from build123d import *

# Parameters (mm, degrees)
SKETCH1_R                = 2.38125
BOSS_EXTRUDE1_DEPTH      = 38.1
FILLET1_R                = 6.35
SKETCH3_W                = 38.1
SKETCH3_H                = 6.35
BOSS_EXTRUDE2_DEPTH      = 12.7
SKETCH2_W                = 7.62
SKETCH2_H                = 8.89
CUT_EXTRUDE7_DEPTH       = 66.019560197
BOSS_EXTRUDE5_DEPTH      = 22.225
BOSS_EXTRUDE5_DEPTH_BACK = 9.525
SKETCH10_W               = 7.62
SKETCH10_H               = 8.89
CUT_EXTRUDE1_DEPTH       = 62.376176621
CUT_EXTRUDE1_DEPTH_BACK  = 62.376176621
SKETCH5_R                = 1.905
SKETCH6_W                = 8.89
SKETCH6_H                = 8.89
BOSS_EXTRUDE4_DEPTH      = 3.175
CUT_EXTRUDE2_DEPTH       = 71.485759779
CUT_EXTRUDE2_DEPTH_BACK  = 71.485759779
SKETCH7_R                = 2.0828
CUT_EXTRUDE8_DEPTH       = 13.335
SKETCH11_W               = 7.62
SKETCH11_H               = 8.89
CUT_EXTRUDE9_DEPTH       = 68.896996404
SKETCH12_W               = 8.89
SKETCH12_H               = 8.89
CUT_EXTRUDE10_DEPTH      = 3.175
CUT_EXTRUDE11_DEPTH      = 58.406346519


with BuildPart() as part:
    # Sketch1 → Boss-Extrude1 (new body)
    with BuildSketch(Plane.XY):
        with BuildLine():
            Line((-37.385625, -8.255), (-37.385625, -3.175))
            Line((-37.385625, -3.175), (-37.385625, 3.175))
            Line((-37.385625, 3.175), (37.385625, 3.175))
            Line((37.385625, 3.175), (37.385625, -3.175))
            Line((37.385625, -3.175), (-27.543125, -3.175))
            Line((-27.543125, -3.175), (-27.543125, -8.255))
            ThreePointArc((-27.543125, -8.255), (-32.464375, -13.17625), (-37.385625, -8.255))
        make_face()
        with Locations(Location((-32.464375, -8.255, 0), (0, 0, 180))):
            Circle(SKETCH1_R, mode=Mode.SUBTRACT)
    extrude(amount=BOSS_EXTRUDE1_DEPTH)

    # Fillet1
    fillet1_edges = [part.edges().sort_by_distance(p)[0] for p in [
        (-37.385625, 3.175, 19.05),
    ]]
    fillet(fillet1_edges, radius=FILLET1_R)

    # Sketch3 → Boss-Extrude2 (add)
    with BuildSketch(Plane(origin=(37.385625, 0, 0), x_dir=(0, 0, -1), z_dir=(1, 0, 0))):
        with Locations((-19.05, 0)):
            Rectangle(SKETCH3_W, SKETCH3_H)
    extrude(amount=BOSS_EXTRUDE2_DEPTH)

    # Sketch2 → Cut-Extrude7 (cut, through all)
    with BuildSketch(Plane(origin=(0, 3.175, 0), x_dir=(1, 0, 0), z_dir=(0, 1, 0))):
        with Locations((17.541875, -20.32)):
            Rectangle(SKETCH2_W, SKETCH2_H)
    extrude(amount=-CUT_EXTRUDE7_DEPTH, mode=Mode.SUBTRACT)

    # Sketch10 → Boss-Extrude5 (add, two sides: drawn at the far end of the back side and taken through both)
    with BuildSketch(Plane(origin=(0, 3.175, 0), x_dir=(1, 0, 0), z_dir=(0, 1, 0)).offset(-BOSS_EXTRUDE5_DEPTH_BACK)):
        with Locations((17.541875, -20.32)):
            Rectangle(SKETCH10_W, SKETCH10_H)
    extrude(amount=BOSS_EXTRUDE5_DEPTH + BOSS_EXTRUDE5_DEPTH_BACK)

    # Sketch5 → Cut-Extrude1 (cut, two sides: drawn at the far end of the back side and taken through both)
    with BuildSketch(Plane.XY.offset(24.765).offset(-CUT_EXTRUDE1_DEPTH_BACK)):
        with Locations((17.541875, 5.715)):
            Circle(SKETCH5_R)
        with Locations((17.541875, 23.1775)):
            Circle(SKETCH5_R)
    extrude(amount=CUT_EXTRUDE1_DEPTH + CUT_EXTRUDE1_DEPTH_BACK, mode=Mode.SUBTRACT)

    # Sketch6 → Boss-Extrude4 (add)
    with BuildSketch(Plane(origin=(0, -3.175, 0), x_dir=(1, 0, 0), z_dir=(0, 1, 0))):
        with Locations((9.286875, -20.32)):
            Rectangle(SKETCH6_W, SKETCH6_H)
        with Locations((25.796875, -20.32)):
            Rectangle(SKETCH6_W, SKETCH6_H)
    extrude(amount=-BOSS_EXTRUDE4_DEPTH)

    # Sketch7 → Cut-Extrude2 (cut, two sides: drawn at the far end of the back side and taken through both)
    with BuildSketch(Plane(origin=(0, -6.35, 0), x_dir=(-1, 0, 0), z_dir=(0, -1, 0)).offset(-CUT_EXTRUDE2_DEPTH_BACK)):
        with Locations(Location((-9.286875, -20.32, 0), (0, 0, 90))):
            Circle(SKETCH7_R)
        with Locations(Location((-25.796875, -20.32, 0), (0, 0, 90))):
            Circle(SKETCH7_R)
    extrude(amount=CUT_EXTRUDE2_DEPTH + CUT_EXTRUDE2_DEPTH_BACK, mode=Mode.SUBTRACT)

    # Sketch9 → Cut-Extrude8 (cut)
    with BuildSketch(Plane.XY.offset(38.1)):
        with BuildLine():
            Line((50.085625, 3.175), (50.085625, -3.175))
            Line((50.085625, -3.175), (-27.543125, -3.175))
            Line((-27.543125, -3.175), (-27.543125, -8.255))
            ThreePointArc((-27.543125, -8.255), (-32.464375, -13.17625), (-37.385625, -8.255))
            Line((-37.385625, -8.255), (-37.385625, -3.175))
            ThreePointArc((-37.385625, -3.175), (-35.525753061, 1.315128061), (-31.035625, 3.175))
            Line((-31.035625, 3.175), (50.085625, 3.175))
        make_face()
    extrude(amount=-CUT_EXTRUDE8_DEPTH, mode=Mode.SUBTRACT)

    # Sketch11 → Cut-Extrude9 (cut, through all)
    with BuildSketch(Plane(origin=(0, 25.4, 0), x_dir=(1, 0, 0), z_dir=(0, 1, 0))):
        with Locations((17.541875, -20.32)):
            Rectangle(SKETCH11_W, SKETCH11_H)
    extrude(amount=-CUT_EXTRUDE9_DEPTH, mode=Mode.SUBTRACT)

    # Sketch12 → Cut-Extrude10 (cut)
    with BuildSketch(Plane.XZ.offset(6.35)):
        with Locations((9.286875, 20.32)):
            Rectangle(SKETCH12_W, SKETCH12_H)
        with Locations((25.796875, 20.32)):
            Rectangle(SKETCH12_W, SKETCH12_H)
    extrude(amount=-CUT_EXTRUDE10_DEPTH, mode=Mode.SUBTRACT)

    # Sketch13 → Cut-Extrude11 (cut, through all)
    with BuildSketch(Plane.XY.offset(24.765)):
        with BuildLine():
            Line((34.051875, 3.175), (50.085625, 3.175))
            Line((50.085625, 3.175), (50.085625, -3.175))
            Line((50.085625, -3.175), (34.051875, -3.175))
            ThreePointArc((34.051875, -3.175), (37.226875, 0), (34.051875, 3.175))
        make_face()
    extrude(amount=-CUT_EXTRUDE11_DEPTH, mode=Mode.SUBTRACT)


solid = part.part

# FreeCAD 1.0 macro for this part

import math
import FreeCAD as App
import Part
import Sketcher
Q = App.Units.Quantity


def edges_at(feature, points):
    """Names of the edges that pass closest to the given points."""
    edges = feature.Shape.Edges
    near = lambda p: min(range(len(edges)), key=lambda i: edges[i].distToShape(Part.Vertex(*p))[0])
    return sorted({f"Edge{near(p) + 1}" for p in points})


def add_polygon(sketch, points):
    """Adds a closed chain of lines whose ends are joined by coincident constraints."""
    first, n = sketch.GeometryCount, len(points)
    for a, b in zip(points, points[1:] + points[:1]):
        sketch.addGeometry(Part.LineSegment(App.Vector(*a, 0), App.Vector(*b, 0)), False)
    for i in range(n):
        sketch.addConstraint(Sketcher.Constraint("Coincident", first + i, 2, first + (i + 1) % n, 1))

doc = App.newDocument("Part")
body = doc.addObject("PartDesign::Body", "Body")

# Sketch on XY plane
sketch1 = body.newObject("Sketcher::SketchObject", "Sketch")
sketch1.AttachmentSupport = (doc.getObject("XY_Plane"), [""])
sketch1.MapMode = "FlatFace"
sketch1.addGeometry([
    Part.LineSegment(App.Vector(-37.385625, 3.175, 0), App.Vector(-37.385625, -8.255, 0)),  # 0
    Part.ArcOfCircle(Part.Circle(App.Vector(-32.464375, -8.255, 0), App.Vector(0, 0, 1), 4.92125), math.radians(180), math.radians(360)),  # 1
    Part.LineSegment(App.Vector(-27.543125, -8.255, 0), App.Vector(-27.543125, -3.175, 0)),  # 2
    Part.LineSegment(App.Vector(-27.543125, -3.175, 0), App.Vector(37.385625, -3.175, 0)),  # 3
    Part.LineSegment(App.Vector(37.385625, -3.175, 0), App.Vector(37.385625, 3.175, 0)),  # 4
    Part.LineSegment(App.Vector(37.385625, 3.175, 0), App.Vector(-37.385625, 3.175, 0)),  # 5
    Part.Circle(App.Vector(-32.464375, -8.255, 0), App.Vector(0, 0, 1), 2.38125),  # 6
], False)
sketch1.addConstraint([
    Sketcher.Constraint("Tangent", 0, 2, 1, 1),
    Sketcher.Constraint("Tangent", 1, 2, 2, 1),
    Sketcher.Constraint("Coincident", 2, 2, 3, 1),
    Sketcher.Constraint("Coincident", 3, 2, 4, 1),
    Sketcher.Constraint("Coincident", 4, 2, 5, 1),
    Sketcher.Constraint("Coincident", 5, 2, 0, 1),
    Sketcher.Constraint("Vertical", 0),
    Sketcher.Constraint("Vertical", 2),
    Sketcher.Constraint("Horizontal", 3),
    Sketcher.Constraint("Vertical", 4),
    Sketcher.Constraint("Horizontal", 5),
    Sketcher.Constraint("Coincident", 6, 3, 1, 3),
    Sketcher.Constraint("Symmetric", 3, 2, 5, 2, -1, 1),
    Sketcher.Constraint("Diameter", 6, Q("0.1875 in")),
    Sketcher.Constraint("DistanceY", 2, 1, 2, 2, Q("0.2 in")),
    Sketcher.Constraint("DistanceY", 0, 2, 0, 1, Q("0.45 in")),
    Sketcher.Constraint("DistanceX", 1, 3, 3, 2, Q("2.75 in")),
    Sketcher.Constraint("Radius", 1, Q("4.92125 mm")),
])
pad1 = body.newObject("PartDesign::Pad", "Pad")
pad1.Profile = sketch1
pad1.Length = Q("1.5 in")
doc.recompute()

fillet = body.newObject("PartDesign::Fillet", "Fillet")
fillet.Base = (pad1, edges_at(pad1, [(-37.386, 3.175, 19.05)]))
fillet.Radius = Q("0.25 in")

# Sketch on YZ plane
sketch2 = body.newObject("Sketcher::SketchObject", "Sketch001")
sketch2.AttachmentSupport = (doc.getObject("YZ_Plane"), [""])
sketch2.MapMode = "FlatFace"
sketch2.AttachmentOffset = App.Placement(App.Vector(0, 0, 37.385625), App.Rotation())
add_polygon(sketch2, [(3.175, 38.1), (-3.175, 38.1), (-3.175, 0), (3.175, 0)])  # lines 0-3
sketch2.addConstraint([
    Sketcher.Constraint("Horizontal", 0),
    Sketcher.Constraint("Vertical", 1),
    Sketcher.Constraint("Horizontal", 2),
    Sketcher.Constraint("Vertical", 3),
    Sketcher.Constraint("Symmetric", 1, 2, 2, 2, -1, 1),
    Sketcher.Constraint("DistanceY", 1, 2, 1, 1, Q("1.5 in")),
    Sketcher.Constraint("DistanceX", 0, 2, 0, 1, Q("0.25 in")),
])
pad2 = body.newObject("PartDesign::Pad", "Pad001")
pad2.Profile = sketch2
pad2.Length = Q("0.5 in")

# Sketch on XZ plane
sketch3 = body.newObject("Sketcher::SketchObject", "Sketch002")
sketch3.AttachmentSupport = (doc.getObject("XZ_Plane"), [""])
sketch3.MapMode = "FlatFace"
sketch3.AttachmentOffset = App.Placement(App.Vector(0, 0, -0.125 * 25.4), App.Rotation())
add_polygon(sketch3, [(13.731875, 15.875), (13.731875, 24.765), (21.351875, 24.765), (21.351875, 15.875)])  # lines 0-3
sketch3.addConstraint([
    Sketcher.Constraint("Vertical", 0),
    Sketcher.Constraint("Horizontal", 1),
    Sketcher.Constraint("Vertical", 2),
    Sketcher.Constraint("Horizontal", 3),
    Sketcher.Constraint("DistanceX", 1, 1, 1, 2, Q("0.3 in")),
    Sketcher.Constraint("DistanceY", 0, 1, 0, 2, Q("0.35 in")),
    Sketcher.Constraint("DistanceY", -1, 1, 0, 2, Q("0.975 in")),
    Sketcher.Constraint("DistanceX", -1, 1, 0, 2, Q("13.731875 mm")),
])
pocket1 = body.newObject("PartDesign::Pocket", "Pocket")
pocket1.Profile = sketch3
pocket1.Type = "ThroughAll"
pocket1.Reversed = True

# Sketch on XZ plane
sketch4 = body.newObject("Sketcher::SketchObject", "Sketch003")
sketch4.AttachmentSupport = (doc.getObject("XZ_Plane"), [""])
sketch4.MapMode = "FlatFace"
sketch4.AttachmentOffset = App.Placement(App.Vector(0, 0, -0.125 * 25.4), App.Rotation())
add_polygon(sketch4, [(13.731875, 15.875), (13.731875, 24.765), (21.351875, 24.765), (21.351875, 15.875)])  # lines 0-3
sketch4.addConstraint([
    Sketcher.Constraint("Vertical", 0),
    Sketcher.Constraint("Horizontal", 1),
    Sketcher.Constraint("Vertical", 2),
    Sketcher.Constraint("Horizontal", 3),
    Sketcher.Constraint("DistanceX", 1, 1, 1, 2, Q("0.3 in")),
    Sketcher.Constraint("DistanceY", 0, 1, 0, 2, Q("0.35 in")),
    Sketcher.Constraint("DistanceY", -1, 1, 0, 2, Q("0.975 in")),
    Sketcher.Constraint("DistanceX", -1, 1, 0, 2, Q("13.731875 mm")),
])
pad3 = body.newObject("PartDesign::Pad", "Pad002")
pad3.Profile = sketch4
pad3.Type = "TwoLengths"
pad3.Length = Q("0.875 in")
pad3.Length2 = Q("0.375 in")
pad3.Reversed = True

# Sketch on XY plane
sketch5 = body.newObject("Sketcher::SketchObject", "Sketch004")
sketch5.AttachmentSupport = (doc.getObject("XY_Plane"), [""])
sketch5.MapMode = "FlatFace"
sketch5.AttachmentOffset = App.Placement(App.Vector(0, 0, 0.975 * 25.4), App.Rotation())
sketch5.addGeometry([
    Part.Circle(App.Vector(17.541875, 5.715, 0), App.Vector(0, 0, 1), 1.905),
    Part.Circle(App.Vector(17.541875, 23.1775, 0), App.Vector(0, 0, 1), 1.905),
], False)
sketch5.addConstraint([
    Sketcher.Constraint("Equal", 0, 1),
    Sketcher.Constraint("Vertical", 0, 3, 1, 3),
    Sketcher.Constraint("Diameter", 0, Q("0.15 in")),
    Sketcher.Constraint("DistanceY", -1, 1, 0, 3, Q("0.225 in")),
    Sketcher.Constraint("DistanceY", 0, 3, 1, 3, Q("0.6875 in")),
    Sketcher.Constraint("DistanceX", -1, 1, 0, 3, Q("17.541875 mm")),
])
pocket2 = body.newObject("PartDesign::Pocket", "Pocket001")
pocket2.Profile = sketch5
pocket2.Type = "ThroughAll"
pocket2.Midplane = True

# Sketch on XZ plane
sketch6 = body.newObject("Sketcher::SketchObject", "Sketch005")
sketch6.AttachmentSupport = (doc.getObject("XZ_Plane"), [""])
sketch6.MapMode = "FlatFace"
sketch6.AttachmentOffset = App.Placement(App.Vector(0, 0, 0.125 * 25.4), App.Rotation())
add_polygon(sketch6, [(4.841875, 15.875), (4.841875, 24.765), (13.731875, 24.765), (13.731875, 15.875)])  # lines 0-3
add_polygon(sketch6, [(21.351875, 15.875), (21.351875, 24.765), (30.241875, 24.765), (30.241875, 15.875)])  # lines 4-7
sketch6.addConstraint([
    Sketcher.Constraint("Vertical", 0),
    Sketcher.Constraint("Horizontal", 1),
    Sketcher.Constraint("Vertical", 2),
    Sketcher.Constraint("Horizontal", 3),
    Sketcher.Constraint("Vertical", 4),
    Sketcher.Constraint("Horizontal", 5),
    Sketcher.Constraint("Vertical", 6),
    Sketcher.Constraint("Horizontal", 7),
    Sketcher.Constraint("Horizontal", 1, 2, 4, 2),
    Sketcher.Constraint("Horizontal", 3, 2, 6, 2),
    Sketcher.Constraint("Equal", 3, 5),
    Sketcher.Constraint("Equal", 7, 0),
    Sketcher.Constraint("DistanceX", 0, 2, 5, 2, Q("1 in")),
    Sketcher.Constraint("DistanceX", 1, 1, 1, 2, Q("0.35 in")),
    Sketcher.Constraint("DistanceY", -1, 1, 0, 2, Q("0.975 in")),
    Sketcher.Constraint("DistanceX", -1, 1, 0, 2, Q("4.841875 mm")),
])
pad4 = body.newObject("PartDesign::Pad", "Pad003")
pad4.Profile = sketch6
pad4.Length = Q("0.125 in")

# Sketch on XZ plane
sketch7 = body.newObject("Sketcher::SketchObject", "Sketch006")
sketch7.AttachmentSupport = (doc.getObject("XZ_Plane"), [""])
sketch7.MapMode = "FlatFace"
sketch7.AttachmentOffset = App.Placement(App.Vector(0, 0, 0.25 * 25.4), App.Rotation())
sketch7.addGeometry([
    Part.Circle(App.Vector(9.286875, 20.32, 0), App.Vector(0, 0, 1), 2.0828),
    Part.Circle(App.Vector(25.796875, 20.32, 0), App.Vector(0, 0, 1), 2.0828),
], False)
sketch7.addConstraint([
    Sketcher.Constraint("Equal", 0, 1),
    Sketcher.Constraint("Horizontal", 0, 3, 1, 3),
    Sketcher.Constraint("Diameter", 0, Q("0.164 in")),
    Sketcher.Constraint("DistanceY", -1, 1, 0, 3, Q("0.8 in")),
    Sketcher.Constraint("DistanceX", 0, 3, 1, 3, Q("0.65 in")),
    Sketcher.Constraint("DistanceX", -1, 1, 1, 3, Q("1.015625 in")),
])
pocket3 = body.newObject("PartDesign::Pocket", "Pocket002")
pocket3.Profile = sketch7
pocket3.Type = "ThroughAll"
pocket3.Midplane = True

# Sketch on XY plane
sketch8 = body.newObject("Sketcher::SketchObject", "Sketch007")
sketch8.AttachmentSupport = (doc.getObject("XY_Plane"), [""])
sketch8.MapMode = "FlatFace"
sketch8.AttachmentOffset = App.Placement(App.Vector(0, 0, 1.5 * 25.4), App.Rotation())
sketch8.addGeometry([
    Part.LineSegment(App.Vector(50.085625, -3.175, 0), App.Vector(50.085625, 3.175, 0)),  # 0
    Part.LineSegment(App.Vector(50.085625, 3.175, 0), App.Vector(-31.035625, 3.175, 0)),  # 1
    Part.ArcOfCircle(Part.Circle(App.Vector(-31.035625, -3.175, 0), App.Vector(0, 0, 1), 6.35), math.radians(90), math.radians(180)),  # 2
    Part.LineSegment(App.Vector(-37.385625, -3.175, 0), App.Vector(-37.385625, -8.255, 0)),  # 3
    Part.ArcOfCircle(Part.Circle(App.Vector(-32.464375, -8.255, 0), App.Vector(0, 0, 1), 4.92125), math.radians(180), math.radians(360)),  # 4
    Part.LineSegment(App.Vector(-27.543125, -8.255, 0), App.Vector(-27.543125, -3.175, 0)),  # 5
    Part.LineSegment(App.Vector(-27.543125, -3.175, 0), App.Vector(50.085625, -3.175, 0)),  # 6
], False)
sketch8.addConstraint([
    Sketcher.Constraint("Coincident", 0, 2, 1, 1),
    Sketcher.Constraint("Tangent", 1, 2, 2, 1),
    Sketcher.Constraint("Tangent", 2, 2, 3, 1),
    Sketcher.Constraint("Tangent", 3, 2, 4, 1),
    Sketcher.Constraint("Tangent", 4, 2, 5, 1),
    Sketcher.Constraint("Coincident", 5, 2, 6, 1),
    Sketcher.Constraint("Coincident", 6, 2, 0, 1),
    Sketcher.Constraint("Vertical", 0),
    Sketcher.Constraint("Horizontal", 1),
    Sketcher.Constraint("Vertical", 3),
    Sketcher.Constraint("Vertical", 5),
    Sketcher.Constraint("Horizontal", 6),
    Sketcher.Constraint("Horizontal", 2, 2, 5, 2),
    Sketcher.Constraint("Radius", 2, Q("0.25 in")),
    Sketcher.Constraint("DistanceY", 3, 2, 3, 1, Q("0.2 in")),
    Sketcher.Constraint("DistanceX", 4, 3, 0, 2, Q("3.25 in")),
    Sketcher.Constraint("DistanceY", 2, 3, -1, 1, Q("0.125 in")),
    Sketcher.Constraint("Radius", 4, Q("4.92125 mm")),
    Sketcher.Constraint("DistanceX", 2, 3, -1, 1, Q("31.035625 mm")),
])
pocket4 = body.newObject("PartDesign::Pocket", "Pocket003")
pocket4.Profile = sketch8
pocket4.Length = Q("0.525 in")

# Sketch on XZ plane
sketch9 = body.newObject("Sketcher::SketchObject", "Sketch008")
sketch9.AttachmentSupport = (doc.getObject("XZ_Plane"), [""])
sketch9.MapMode = "FlatFace"
sketch9.AttachmentOffset = App.Placement(App.Vector(0, 0, -1 * 25.4), App.Rotation())
add_polygon(sketch9, [(13.731875, 15.875), (13.731875, 24.765), (21.351875, 24.765), (21.351875, 15.875)])  # lines 0-3
sketch9.addConstraint([
    Sketcher.Constraint("Vertical", 0),
    Sketcher.Constraint("Horizontal", 1),
    Sketcher.Constraint("Vertical", 2),
    Sketcher.Constraint("Horizontal", 3),
    Sketcher.Constraint("DistanceX", 1, 1, 1, 2, Q("0.3 in")),
    Sketcher.Constraint("DistanceY", 0, 1, 0, 2, Q("0.35 in")),
    Sketcher.Constraint("DistanceY", -1, 1, 0, 2, Q("0.975 in")),
    Sketcher.Constraint("DistanceX", -1, 1, 0, 2, Q("13.731875 mm")),
])
pocket5 = body.newObject("PartDesign::Pocket", "Pocket004")
pocket5.Profile = sketch9
pocket5.Type = "ThroughAll"
pocket5.Reversed = True

# Sketch on XZ plane
sketch10 = body.newObject("Sketcher::SketchObject", "Sketch009")
sketch10.AttachmentSupport = (doc.getObject("XZ_Plane"), [""])
sketch10.MapMode = "FlatFace"
sketch10.AttachmentOffset = App.Placement(App.Vector(0, 0, 0.25 * 25.4), App.Rotation())
add_polygon(sketch10, [(4.841875, 24.765), (4.841875, 15.875), (13.731875, 15.875), (13.731875, 24.765)])  # lines 0-3
add_polygon(sketch10, [(21.351875, 24.765), (21.351875, 15.875), (30.241875, 15.875), (30.241875, 24.765)])  # lines 4-7
sketch10.addConstraint([
    Sketcher.Constraint("Vertical", 0),
    Sketcher.Constraint("Horizontal", 1),
    Sketcher.Constraint("Vertical", 2),
    Sketcher.Constraint("Horizontal", 3),
    Sketcher.Constraint("Vertical", 4),
    Sketcher.Constraint("Horizontal", 5),
    Sketcher.Constraint("Vertical", 6),
    Sketcher.Constraint("Horizontal", 7),
    Sketcher.Constraint("Horizontal", 1, 2, 4, 2),
    Sketcher.Constraint("Horizontal", 3, 2, 6, 2),
    Sketcher.Constraint("Equal", 3, 5),
    Sketcher.Constraint("Equal", 7, 0),
    Sketcher.Constraint("DistanceX", 0, 2, 5, 2, Q("1 in")),
    Sketcher.Constraint("DistanceX", 1, 1, 1, 2, Q("0.35 in")),
    Sketcher.Constraint("DistanceY", -1, 1, 0, 2, Q("0.625 in")),
    Sketcher.Constraint("DistanceX", -1, 1, 0, 2, Q("4.841875 mm")),
])
pocket6 = body.newObject("PartDesign::Pocket", "Pocket005")
pocket6.Profile = sketch10
pocket6.Length = Q("0.125 in")

# Sketch on XY plane
sketch11 = body.newObject("Sketcher::SketchObject", "Sketch010")
sketch11.AttachmentSupport = (doc.getObject("XY_Plane"), [""])
sketch11.MapMode = "FlatFace"
sketch11.AttachmentOffset = App.Placement(App.Vector(0, 0, 0.975 * 25.4), App.Rotation())
sketch11.addGeometry([
    Part.LineSegment(App.Vector(50.085625, 3.175, 0), App.Vector(34.051875, 3.175, 0)),
    Part.ArcOfCircle(Part.Circle(App.Vector(34.051875, 0, 0), App.Vector(0, 0, 1), 3.175), math.radians(-90), math.radians(90)),
    Part.LineSegment(App.Vector(34.051875, -3.175, 0), App.Vector(50.085625, -3.175, 0)),
    Part.LineSegment(App.Vector(50.085625, -3.175, 0), App.Vector(50.085625, 3.175, 0)),
], False)
sketch11.addConstraint([
    Sketcher.Constraint("Tangent", 0, 2, 1, 2),
    Sketcher.Constraint("Tangent", 1, 1, 2, 1),
    Sketcher.Constraint("Coincident", 2, 2, 3, 1),
    Sketcher.Constraint("Coincident", 3, 2, 0, 1),
    Sketcher.Constraint("Horizontal", 0),
    Sketcher.Constraint("Horizontal", 2),
    Sketcher.Constraint("Vertical", 3),
    Sketcher.Constraint("PointOnObject", 1, 3, -1),
    Sketcher.Constraint("Radius", 1, Q("0.125 in")),
    Sketcher.Constraint("DistanceX", 0, 2, 0, 1, Q("16.03375 mm")),
    Sketcher.Constraint("DistanceX", -1, 1, 1, 3, Q("34.051875 mm")),
])
pocket7 = body.newObject("PartDesign::Pocket", "Pocket006")
pocket7.Profile = sketch11
pocket7.Type = "ThroughAll"

doc.recompute()
